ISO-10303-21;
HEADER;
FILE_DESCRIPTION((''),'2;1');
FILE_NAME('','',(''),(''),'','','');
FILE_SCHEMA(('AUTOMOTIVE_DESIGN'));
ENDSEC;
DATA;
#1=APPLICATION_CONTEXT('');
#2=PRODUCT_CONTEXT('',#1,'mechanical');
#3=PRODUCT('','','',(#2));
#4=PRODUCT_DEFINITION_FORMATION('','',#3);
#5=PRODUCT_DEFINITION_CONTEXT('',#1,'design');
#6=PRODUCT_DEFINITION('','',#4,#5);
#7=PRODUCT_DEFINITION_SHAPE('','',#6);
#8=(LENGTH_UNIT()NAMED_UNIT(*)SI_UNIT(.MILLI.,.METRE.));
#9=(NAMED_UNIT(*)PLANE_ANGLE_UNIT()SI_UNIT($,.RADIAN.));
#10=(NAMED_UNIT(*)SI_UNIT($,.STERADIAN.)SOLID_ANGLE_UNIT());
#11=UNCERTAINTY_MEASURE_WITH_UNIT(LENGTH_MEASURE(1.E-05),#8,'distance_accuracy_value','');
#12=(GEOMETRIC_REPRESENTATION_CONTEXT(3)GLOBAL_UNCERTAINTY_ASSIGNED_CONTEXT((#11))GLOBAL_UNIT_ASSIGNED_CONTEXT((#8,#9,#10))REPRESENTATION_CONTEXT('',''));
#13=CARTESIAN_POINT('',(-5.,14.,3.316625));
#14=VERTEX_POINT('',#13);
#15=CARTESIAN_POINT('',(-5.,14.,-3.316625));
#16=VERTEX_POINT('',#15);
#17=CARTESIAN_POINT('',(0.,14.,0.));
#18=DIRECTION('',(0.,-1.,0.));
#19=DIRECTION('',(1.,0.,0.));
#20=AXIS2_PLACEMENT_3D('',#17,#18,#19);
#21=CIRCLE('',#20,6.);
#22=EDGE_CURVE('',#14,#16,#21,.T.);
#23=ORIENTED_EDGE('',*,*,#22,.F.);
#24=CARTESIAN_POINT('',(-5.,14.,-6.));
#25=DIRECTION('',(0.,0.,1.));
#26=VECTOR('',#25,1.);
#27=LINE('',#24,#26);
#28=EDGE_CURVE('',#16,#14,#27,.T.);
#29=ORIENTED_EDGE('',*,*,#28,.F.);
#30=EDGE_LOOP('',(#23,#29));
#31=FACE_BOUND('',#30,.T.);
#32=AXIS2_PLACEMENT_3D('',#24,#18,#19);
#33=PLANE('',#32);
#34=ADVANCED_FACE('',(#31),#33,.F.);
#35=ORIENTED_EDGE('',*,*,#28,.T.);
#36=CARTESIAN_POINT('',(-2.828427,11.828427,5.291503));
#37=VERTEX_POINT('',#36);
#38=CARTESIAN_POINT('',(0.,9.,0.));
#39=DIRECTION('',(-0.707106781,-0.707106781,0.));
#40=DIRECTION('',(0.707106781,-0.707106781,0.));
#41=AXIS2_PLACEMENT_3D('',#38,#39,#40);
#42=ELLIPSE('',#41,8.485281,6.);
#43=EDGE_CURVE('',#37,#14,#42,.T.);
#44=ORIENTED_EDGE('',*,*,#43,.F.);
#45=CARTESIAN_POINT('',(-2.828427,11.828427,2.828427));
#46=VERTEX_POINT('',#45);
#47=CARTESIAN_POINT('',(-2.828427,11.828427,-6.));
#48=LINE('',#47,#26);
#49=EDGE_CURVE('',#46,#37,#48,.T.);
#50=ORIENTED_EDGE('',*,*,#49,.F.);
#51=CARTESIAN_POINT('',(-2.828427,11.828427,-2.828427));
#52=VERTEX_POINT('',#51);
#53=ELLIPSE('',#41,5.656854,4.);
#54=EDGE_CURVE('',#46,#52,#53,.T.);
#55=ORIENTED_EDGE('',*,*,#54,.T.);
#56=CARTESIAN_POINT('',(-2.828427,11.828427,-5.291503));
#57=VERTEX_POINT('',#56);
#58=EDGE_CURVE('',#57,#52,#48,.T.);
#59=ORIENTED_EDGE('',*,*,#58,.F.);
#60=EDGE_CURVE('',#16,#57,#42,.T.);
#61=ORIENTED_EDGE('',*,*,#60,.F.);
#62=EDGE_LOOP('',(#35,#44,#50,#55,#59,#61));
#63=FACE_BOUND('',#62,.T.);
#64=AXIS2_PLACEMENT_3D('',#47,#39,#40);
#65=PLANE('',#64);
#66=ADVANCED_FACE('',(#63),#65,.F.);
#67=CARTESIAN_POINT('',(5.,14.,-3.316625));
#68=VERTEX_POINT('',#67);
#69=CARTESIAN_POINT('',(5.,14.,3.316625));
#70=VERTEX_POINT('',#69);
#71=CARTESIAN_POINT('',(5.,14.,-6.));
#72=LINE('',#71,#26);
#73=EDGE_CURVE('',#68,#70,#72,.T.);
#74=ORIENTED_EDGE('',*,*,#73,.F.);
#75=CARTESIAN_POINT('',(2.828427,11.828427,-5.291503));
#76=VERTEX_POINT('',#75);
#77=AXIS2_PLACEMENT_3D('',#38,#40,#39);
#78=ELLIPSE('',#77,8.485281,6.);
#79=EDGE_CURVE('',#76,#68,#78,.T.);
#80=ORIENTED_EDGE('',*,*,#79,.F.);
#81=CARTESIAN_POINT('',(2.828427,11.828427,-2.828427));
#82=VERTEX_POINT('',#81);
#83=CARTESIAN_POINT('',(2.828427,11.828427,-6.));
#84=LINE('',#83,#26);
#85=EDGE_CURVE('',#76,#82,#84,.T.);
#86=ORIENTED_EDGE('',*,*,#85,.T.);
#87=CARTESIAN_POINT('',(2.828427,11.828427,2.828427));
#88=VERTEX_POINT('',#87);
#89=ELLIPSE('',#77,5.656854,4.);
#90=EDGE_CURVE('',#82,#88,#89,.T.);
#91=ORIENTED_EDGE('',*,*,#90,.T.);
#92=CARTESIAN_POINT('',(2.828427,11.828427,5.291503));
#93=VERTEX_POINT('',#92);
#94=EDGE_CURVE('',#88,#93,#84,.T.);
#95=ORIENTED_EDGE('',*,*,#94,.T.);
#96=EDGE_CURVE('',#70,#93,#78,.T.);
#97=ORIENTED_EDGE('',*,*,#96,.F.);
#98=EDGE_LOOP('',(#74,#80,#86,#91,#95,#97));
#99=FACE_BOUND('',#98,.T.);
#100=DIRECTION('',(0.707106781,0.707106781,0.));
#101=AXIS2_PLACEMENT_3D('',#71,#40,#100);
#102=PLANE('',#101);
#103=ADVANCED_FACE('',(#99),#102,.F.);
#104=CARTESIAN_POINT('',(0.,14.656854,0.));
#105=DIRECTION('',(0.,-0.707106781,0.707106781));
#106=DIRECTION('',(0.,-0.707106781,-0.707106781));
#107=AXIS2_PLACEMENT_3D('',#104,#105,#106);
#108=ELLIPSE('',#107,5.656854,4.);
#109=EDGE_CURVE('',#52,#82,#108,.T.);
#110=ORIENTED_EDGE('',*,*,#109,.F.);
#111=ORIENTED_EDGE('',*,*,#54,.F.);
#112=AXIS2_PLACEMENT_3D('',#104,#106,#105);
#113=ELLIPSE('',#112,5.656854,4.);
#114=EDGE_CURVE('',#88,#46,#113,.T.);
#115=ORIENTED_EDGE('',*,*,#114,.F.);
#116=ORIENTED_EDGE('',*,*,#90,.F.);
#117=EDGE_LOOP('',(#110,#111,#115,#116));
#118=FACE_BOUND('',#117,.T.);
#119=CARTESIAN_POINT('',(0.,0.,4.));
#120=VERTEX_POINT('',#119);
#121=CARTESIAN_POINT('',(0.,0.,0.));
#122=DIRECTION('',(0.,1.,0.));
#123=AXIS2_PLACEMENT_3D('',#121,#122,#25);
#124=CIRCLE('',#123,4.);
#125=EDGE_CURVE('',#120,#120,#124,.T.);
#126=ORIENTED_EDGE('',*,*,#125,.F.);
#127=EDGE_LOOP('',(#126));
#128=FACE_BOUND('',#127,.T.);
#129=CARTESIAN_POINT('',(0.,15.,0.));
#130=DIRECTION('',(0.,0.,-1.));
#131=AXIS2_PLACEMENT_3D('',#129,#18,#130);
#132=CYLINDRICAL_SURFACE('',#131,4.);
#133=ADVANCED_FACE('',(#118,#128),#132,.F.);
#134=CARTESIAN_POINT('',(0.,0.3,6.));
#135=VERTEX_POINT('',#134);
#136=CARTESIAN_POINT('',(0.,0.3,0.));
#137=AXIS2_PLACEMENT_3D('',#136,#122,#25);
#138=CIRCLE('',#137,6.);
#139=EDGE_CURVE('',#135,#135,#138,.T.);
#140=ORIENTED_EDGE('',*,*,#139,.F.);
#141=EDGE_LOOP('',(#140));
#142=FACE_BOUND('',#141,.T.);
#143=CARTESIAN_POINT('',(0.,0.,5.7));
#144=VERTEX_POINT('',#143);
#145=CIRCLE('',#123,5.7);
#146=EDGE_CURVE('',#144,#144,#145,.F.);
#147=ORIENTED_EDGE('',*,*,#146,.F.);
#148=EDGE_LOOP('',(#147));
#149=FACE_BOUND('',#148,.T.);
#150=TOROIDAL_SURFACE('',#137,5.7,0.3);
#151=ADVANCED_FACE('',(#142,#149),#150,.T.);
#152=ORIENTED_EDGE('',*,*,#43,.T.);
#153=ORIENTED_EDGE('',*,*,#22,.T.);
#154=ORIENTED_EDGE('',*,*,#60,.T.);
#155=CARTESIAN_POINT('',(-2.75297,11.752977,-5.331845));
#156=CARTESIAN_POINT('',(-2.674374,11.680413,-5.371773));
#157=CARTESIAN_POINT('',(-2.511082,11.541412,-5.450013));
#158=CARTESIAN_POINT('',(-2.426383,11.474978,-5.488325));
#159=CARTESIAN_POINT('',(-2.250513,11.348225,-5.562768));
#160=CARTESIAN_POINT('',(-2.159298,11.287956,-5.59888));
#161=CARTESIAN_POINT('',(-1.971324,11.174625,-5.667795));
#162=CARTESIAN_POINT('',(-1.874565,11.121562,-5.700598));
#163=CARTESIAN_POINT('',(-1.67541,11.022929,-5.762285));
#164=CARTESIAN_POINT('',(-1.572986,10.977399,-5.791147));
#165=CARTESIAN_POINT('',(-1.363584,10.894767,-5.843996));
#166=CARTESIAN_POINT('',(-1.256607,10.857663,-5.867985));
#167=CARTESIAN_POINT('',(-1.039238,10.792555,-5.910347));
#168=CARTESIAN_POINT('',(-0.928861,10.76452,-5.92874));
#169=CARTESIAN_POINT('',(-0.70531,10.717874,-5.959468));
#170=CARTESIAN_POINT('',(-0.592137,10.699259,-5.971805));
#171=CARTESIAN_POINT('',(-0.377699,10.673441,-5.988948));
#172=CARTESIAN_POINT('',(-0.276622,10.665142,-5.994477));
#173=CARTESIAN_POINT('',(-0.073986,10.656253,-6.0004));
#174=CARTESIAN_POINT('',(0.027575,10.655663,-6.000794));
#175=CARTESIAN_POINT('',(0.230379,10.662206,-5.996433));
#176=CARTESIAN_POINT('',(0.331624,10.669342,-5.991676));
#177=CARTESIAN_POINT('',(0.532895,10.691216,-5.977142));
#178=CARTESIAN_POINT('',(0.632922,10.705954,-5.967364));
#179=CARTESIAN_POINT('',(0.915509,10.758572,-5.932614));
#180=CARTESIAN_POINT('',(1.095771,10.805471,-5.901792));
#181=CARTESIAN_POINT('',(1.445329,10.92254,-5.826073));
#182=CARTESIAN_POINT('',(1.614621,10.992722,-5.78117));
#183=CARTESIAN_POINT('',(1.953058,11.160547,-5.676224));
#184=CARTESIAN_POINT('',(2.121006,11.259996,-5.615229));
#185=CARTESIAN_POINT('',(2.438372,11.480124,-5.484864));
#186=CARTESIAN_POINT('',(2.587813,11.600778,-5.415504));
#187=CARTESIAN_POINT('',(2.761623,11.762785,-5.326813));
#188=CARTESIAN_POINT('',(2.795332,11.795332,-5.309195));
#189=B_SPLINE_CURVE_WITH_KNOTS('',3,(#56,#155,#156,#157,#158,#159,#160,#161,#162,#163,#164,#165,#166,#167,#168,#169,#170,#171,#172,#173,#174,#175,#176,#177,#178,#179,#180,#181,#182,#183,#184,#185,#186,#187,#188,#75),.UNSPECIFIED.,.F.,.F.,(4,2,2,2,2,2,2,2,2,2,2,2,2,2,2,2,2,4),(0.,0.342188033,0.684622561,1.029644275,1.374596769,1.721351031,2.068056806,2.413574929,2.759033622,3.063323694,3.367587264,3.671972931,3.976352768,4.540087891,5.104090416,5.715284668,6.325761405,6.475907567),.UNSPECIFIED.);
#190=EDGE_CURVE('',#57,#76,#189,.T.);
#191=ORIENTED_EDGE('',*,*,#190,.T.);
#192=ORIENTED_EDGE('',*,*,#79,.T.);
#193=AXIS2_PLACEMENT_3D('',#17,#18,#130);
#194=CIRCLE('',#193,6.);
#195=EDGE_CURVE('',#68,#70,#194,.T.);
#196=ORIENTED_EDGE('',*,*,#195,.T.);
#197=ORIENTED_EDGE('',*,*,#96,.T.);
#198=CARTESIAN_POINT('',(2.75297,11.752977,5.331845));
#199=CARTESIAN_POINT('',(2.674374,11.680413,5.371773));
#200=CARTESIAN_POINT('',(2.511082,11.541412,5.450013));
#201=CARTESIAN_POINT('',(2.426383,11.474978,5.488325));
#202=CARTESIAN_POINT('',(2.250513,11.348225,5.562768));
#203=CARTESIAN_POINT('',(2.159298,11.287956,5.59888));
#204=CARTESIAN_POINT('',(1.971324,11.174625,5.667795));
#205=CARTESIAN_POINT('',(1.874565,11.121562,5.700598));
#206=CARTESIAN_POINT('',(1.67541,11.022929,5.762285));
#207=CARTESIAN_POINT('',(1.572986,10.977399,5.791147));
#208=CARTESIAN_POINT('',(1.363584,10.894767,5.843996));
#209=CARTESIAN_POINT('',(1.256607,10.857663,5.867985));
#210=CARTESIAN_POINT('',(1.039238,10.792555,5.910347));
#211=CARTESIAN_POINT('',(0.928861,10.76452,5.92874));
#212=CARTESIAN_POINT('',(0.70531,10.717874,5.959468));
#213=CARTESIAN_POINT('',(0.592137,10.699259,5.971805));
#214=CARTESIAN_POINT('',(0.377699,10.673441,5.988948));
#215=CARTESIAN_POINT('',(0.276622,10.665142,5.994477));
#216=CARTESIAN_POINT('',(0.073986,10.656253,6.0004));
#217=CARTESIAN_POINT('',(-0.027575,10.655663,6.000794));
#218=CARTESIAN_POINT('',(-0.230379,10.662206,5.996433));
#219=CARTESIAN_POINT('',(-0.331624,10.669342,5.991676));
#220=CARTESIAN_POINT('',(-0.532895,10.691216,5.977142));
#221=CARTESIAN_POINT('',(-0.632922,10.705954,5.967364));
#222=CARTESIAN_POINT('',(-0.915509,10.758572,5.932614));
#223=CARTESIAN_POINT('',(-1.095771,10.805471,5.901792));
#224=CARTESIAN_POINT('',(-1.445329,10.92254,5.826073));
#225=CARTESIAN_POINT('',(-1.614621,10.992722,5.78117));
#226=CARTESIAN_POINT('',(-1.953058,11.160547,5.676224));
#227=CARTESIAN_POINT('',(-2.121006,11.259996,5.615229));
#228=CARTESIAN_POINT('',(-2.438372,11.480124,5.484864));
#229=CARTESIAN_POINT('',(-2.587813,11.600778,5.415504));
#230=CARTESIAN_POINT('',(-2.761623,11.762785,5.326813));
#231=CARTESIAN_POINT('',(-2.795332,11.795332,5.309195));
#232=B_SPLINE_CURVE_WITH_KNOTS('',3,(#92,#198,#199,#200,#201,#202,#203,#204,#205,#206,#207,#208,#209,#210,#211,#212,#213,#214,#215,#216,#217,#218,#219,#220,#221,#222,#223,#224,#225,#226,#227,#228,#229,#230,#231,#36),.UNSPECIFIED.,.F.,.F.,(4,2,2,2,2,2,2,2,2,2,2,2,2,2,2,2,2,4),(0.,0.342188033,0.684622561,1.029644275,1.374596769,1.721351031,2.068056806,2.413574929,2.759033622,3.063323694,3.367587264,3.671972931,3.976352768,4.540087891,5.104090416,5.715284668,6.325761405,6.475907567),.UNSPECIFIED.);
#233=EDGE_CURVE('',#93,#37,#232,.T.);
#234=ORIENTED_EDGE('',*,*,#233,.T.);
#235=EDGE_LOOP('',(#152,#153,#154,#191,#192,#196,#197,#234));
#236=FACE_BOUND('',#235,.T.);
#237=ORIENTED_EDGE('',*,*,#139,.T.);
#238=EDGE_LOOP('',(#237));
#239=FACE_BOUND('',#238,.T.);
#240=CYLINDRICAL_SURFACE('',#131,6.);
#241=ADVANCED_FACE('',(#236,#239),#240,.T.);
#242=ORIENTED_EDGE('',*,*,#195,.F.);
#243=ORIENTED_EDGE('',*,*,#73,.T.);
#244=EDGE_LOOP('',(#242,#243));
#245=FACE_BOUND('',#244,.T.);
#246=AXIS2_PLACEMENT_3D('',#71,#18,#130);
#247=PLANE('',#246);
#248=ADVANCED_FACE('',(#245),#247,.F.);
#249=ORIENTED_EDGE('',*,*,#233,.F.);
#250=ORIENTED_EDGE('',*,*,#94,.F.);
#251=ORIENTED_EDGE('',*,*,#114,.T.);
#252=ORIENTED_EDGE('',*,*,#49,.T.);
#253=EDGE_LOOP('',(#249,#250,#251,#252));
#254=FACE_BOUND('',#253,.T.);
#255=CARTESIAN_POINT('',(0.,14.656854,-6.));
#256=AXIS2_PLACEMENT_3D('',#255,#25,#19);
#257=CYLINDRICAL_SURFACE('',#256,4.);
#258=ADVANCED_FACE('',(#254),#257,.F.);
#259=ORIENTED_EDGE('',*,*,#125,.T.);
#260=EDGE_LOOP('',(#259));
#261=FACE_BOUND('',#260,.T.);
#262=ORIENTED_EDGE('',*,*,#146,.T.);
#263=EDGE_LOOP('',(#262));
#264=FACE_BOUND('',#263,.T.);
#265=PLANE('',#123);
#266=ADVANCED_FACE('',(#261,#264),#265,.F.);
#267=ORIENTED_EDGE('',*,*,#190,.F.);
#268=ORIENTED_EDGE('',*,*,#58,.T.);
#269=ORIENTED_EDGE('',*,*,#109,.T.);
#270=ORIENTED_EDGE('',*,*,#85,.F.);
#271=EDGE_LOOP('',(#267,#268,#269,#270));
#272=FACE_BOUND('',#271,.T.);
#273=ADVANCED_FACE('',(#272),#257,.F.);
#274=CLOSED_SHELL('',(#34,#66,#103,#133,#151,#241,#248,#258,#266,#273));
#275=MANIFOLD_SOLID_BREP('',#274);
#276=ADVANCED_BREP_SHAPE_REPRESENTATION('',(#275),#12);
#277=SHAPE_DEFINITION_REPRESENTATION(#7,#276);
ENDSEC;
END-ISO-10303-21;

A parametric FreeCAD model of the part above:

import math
import FreeCAD as App
import Part
import Sketcher

V = App.Vector


def edges_at(feature, points):
    """Names of the edges that pass closest to the given points."""
    edges = feature.Shape.Edges
    near = lambda p: min(range(len(edges)), key=lambda i: edges[i].distToShape(Part.Vertex(*p))[0])
    return sorted({f"Edge{near(p) + 1}" for p in points})

doc = App.newDocument("Part")
params = doc.addObject("Spreadsheet::Sheet", "Params")
for row, (alias, value) in enumerate([
    ("sketch1_diameter", "12 mm"),
    ("sketch1_diameter2", "8 mm"),
    ("pad1_length", "15 mm"),
    ("sketch2_radius", "4 mm"),
    ("fillet_radius", "0.3 mm"),
], start=1):
    params.set(f"A{row}", alias)
    params.set(f"B{row}", "=" + value)
    params.setAlias(f"B{row}", alias)

body = doc.addObject("PartDesign::Body", "Body")

# Sketch on XZ plane
sketch1 = body.newObject("Sketcher::SketchObject", "Sketch")
sketch1.AttachmentSupport = (doc.getObject("XZ_Plane"), [""])
sketch1.MapMode = "FlatFace"
sketch1.addGeometry([
    Part.Circle(V(0, 0, 0), V(0, 0, 1), 6),
    Part.Circle(V(0, 0, 0), V(0, 0, 1), 4),
], False)
sketch1.addConstraint([
    Sketcher.Constraint("Coincident", 0, 3, -1, 1),
    Sketcher.Constraint("Coincident", 1, 3, -1, 1),
    Sketcher.Constraint("Diameter", 0, 12.0),
    Sketcher.Constraint("Diameter", 1, 8.0),
])
sketch1.setExpression("Constraints[2]", "Params.sketch1_diameter")
sketch1.setExpression("Constraints[3]", "Params.sketch1_diameter2")
pad1 = body.newObject("PartDesign::Pad", "Pad")
pad1.Profile = sketch1
pad1.setExpression("Length", "Params.pad1_length")
pad1.Reversed = True

# Sketch on XY plane
sketch2 = body.newObject("Sketcher::SketchObject", "Sketch001")
sketch2.AttachmentSupport = (doc.getObject("XY_Plane"), [""])
sketch2.MapMode = "FlatFace"
sketch2.addGeometry([
    Part.LineSegment(V(2.828427, 11.828427, 0), V(5, 14, 0)),  # 0
    Part.LineSegment(V(5, 14, 0), V(8.078053, 14, 0)),  # 1
    Part.LineSegment(V(8.078053, 14, 0), V(8.078053, 18.742379, 0)),  # 2
    Part.LineSegment(V(8.078053, 18.742379, 0), V(-7.916634, 18.742379, 0)),  # 3
    Part.LineSegment(V(-7.916634, 18.742379, 0), V(-7.916634, 14, 0)),  # 4
    Part.LineSegment(V(-7.916634, 14, 0), V(-5, 14, 0)),  # 5
    Part.LineSegment(V(-5, 14, 0), V(-2.828427, 11.828427, 0)),  # 6
    Part.ArcOfCircle(Part.Circle(V(0, 14.656854, 0), V(0, 0, 1), 4), math.radians(-135), math.radians(-45)),  # 7
], False)
sketch2.addConstraint([
    Sketcher.Constraint("Coincident", 0, 2, 1, 1),
    Sketcher.Constraint("Coincident", 1, 2, 2, 1),
    Sketcher.Constraint("Coincident", 2, 2, 3, 1),
    Sketcher.Constraint("Coincident", 3, 2, 4, 1),
    Sketcher.Constraint("Coincident", 4, 2, 5, 1),
    Sketcher.Constraint("Coincident", 5, 2, 6, 1),
    Sketcher.Constraint("Tangent", 6, 2, 7, 1),
    Sketcher.Constraint("Tangent", 7, 2, 0, 1),
    Sketcher.Constraint("Horizontal", 1),
    Sketcher.Constraint("Vertical", 2),
    Sketcher.Constraint("Horizontal", 3),
    Sketcher.Constraint("Vertical", 4),
    Sketcher.Constraint("Horizontal", 5),
    Sketcher.Constraint("Symmetric", 0, 2, 5, 2, -2),
    Sketcher.Constraint("PointOnObject", 7, 3, -2),
    Sketcher.Constraint("Perpendicular", 0, 6),
    Sketcher.Constraint("Radius", 7, 4.0),
    Sketcher.Constraint("DistanceX", -1, 1, 0, 2, 5.0),
    Sketcher.Constraint("DistanceY", -1, 1, 0, 2, 14.0),
    Sketcher.Constraint("DistanceY", 2, 1, 2, 2, 4.742379),
    Sketcher.Constraint("DistanceX", 1, 1, 1, 2, 3.078053),
    Sketcher.Constraint("DistanceX", 3, 2, 3, 1, 15.994687),
])
sketch2.setExpression("Constraints[16]", "Params.sketch2_radius")
pocket1 = body.newObject("PartDesign::Pocket", "Pocket")
pocket1.Profile = sketch2
pocket1.Type = "ThroughAll"
pocket1.Midplane = True
doc.recompute()

fillet = body.newObject("PartDesign::Fillet", "Fillet")
fillet.Base = (pocket1, edges_at(pocket1, [(0, 0, -6)]))
fillet.setExpression("Radius", "Params.fillet_radius")

doc.recompute()
